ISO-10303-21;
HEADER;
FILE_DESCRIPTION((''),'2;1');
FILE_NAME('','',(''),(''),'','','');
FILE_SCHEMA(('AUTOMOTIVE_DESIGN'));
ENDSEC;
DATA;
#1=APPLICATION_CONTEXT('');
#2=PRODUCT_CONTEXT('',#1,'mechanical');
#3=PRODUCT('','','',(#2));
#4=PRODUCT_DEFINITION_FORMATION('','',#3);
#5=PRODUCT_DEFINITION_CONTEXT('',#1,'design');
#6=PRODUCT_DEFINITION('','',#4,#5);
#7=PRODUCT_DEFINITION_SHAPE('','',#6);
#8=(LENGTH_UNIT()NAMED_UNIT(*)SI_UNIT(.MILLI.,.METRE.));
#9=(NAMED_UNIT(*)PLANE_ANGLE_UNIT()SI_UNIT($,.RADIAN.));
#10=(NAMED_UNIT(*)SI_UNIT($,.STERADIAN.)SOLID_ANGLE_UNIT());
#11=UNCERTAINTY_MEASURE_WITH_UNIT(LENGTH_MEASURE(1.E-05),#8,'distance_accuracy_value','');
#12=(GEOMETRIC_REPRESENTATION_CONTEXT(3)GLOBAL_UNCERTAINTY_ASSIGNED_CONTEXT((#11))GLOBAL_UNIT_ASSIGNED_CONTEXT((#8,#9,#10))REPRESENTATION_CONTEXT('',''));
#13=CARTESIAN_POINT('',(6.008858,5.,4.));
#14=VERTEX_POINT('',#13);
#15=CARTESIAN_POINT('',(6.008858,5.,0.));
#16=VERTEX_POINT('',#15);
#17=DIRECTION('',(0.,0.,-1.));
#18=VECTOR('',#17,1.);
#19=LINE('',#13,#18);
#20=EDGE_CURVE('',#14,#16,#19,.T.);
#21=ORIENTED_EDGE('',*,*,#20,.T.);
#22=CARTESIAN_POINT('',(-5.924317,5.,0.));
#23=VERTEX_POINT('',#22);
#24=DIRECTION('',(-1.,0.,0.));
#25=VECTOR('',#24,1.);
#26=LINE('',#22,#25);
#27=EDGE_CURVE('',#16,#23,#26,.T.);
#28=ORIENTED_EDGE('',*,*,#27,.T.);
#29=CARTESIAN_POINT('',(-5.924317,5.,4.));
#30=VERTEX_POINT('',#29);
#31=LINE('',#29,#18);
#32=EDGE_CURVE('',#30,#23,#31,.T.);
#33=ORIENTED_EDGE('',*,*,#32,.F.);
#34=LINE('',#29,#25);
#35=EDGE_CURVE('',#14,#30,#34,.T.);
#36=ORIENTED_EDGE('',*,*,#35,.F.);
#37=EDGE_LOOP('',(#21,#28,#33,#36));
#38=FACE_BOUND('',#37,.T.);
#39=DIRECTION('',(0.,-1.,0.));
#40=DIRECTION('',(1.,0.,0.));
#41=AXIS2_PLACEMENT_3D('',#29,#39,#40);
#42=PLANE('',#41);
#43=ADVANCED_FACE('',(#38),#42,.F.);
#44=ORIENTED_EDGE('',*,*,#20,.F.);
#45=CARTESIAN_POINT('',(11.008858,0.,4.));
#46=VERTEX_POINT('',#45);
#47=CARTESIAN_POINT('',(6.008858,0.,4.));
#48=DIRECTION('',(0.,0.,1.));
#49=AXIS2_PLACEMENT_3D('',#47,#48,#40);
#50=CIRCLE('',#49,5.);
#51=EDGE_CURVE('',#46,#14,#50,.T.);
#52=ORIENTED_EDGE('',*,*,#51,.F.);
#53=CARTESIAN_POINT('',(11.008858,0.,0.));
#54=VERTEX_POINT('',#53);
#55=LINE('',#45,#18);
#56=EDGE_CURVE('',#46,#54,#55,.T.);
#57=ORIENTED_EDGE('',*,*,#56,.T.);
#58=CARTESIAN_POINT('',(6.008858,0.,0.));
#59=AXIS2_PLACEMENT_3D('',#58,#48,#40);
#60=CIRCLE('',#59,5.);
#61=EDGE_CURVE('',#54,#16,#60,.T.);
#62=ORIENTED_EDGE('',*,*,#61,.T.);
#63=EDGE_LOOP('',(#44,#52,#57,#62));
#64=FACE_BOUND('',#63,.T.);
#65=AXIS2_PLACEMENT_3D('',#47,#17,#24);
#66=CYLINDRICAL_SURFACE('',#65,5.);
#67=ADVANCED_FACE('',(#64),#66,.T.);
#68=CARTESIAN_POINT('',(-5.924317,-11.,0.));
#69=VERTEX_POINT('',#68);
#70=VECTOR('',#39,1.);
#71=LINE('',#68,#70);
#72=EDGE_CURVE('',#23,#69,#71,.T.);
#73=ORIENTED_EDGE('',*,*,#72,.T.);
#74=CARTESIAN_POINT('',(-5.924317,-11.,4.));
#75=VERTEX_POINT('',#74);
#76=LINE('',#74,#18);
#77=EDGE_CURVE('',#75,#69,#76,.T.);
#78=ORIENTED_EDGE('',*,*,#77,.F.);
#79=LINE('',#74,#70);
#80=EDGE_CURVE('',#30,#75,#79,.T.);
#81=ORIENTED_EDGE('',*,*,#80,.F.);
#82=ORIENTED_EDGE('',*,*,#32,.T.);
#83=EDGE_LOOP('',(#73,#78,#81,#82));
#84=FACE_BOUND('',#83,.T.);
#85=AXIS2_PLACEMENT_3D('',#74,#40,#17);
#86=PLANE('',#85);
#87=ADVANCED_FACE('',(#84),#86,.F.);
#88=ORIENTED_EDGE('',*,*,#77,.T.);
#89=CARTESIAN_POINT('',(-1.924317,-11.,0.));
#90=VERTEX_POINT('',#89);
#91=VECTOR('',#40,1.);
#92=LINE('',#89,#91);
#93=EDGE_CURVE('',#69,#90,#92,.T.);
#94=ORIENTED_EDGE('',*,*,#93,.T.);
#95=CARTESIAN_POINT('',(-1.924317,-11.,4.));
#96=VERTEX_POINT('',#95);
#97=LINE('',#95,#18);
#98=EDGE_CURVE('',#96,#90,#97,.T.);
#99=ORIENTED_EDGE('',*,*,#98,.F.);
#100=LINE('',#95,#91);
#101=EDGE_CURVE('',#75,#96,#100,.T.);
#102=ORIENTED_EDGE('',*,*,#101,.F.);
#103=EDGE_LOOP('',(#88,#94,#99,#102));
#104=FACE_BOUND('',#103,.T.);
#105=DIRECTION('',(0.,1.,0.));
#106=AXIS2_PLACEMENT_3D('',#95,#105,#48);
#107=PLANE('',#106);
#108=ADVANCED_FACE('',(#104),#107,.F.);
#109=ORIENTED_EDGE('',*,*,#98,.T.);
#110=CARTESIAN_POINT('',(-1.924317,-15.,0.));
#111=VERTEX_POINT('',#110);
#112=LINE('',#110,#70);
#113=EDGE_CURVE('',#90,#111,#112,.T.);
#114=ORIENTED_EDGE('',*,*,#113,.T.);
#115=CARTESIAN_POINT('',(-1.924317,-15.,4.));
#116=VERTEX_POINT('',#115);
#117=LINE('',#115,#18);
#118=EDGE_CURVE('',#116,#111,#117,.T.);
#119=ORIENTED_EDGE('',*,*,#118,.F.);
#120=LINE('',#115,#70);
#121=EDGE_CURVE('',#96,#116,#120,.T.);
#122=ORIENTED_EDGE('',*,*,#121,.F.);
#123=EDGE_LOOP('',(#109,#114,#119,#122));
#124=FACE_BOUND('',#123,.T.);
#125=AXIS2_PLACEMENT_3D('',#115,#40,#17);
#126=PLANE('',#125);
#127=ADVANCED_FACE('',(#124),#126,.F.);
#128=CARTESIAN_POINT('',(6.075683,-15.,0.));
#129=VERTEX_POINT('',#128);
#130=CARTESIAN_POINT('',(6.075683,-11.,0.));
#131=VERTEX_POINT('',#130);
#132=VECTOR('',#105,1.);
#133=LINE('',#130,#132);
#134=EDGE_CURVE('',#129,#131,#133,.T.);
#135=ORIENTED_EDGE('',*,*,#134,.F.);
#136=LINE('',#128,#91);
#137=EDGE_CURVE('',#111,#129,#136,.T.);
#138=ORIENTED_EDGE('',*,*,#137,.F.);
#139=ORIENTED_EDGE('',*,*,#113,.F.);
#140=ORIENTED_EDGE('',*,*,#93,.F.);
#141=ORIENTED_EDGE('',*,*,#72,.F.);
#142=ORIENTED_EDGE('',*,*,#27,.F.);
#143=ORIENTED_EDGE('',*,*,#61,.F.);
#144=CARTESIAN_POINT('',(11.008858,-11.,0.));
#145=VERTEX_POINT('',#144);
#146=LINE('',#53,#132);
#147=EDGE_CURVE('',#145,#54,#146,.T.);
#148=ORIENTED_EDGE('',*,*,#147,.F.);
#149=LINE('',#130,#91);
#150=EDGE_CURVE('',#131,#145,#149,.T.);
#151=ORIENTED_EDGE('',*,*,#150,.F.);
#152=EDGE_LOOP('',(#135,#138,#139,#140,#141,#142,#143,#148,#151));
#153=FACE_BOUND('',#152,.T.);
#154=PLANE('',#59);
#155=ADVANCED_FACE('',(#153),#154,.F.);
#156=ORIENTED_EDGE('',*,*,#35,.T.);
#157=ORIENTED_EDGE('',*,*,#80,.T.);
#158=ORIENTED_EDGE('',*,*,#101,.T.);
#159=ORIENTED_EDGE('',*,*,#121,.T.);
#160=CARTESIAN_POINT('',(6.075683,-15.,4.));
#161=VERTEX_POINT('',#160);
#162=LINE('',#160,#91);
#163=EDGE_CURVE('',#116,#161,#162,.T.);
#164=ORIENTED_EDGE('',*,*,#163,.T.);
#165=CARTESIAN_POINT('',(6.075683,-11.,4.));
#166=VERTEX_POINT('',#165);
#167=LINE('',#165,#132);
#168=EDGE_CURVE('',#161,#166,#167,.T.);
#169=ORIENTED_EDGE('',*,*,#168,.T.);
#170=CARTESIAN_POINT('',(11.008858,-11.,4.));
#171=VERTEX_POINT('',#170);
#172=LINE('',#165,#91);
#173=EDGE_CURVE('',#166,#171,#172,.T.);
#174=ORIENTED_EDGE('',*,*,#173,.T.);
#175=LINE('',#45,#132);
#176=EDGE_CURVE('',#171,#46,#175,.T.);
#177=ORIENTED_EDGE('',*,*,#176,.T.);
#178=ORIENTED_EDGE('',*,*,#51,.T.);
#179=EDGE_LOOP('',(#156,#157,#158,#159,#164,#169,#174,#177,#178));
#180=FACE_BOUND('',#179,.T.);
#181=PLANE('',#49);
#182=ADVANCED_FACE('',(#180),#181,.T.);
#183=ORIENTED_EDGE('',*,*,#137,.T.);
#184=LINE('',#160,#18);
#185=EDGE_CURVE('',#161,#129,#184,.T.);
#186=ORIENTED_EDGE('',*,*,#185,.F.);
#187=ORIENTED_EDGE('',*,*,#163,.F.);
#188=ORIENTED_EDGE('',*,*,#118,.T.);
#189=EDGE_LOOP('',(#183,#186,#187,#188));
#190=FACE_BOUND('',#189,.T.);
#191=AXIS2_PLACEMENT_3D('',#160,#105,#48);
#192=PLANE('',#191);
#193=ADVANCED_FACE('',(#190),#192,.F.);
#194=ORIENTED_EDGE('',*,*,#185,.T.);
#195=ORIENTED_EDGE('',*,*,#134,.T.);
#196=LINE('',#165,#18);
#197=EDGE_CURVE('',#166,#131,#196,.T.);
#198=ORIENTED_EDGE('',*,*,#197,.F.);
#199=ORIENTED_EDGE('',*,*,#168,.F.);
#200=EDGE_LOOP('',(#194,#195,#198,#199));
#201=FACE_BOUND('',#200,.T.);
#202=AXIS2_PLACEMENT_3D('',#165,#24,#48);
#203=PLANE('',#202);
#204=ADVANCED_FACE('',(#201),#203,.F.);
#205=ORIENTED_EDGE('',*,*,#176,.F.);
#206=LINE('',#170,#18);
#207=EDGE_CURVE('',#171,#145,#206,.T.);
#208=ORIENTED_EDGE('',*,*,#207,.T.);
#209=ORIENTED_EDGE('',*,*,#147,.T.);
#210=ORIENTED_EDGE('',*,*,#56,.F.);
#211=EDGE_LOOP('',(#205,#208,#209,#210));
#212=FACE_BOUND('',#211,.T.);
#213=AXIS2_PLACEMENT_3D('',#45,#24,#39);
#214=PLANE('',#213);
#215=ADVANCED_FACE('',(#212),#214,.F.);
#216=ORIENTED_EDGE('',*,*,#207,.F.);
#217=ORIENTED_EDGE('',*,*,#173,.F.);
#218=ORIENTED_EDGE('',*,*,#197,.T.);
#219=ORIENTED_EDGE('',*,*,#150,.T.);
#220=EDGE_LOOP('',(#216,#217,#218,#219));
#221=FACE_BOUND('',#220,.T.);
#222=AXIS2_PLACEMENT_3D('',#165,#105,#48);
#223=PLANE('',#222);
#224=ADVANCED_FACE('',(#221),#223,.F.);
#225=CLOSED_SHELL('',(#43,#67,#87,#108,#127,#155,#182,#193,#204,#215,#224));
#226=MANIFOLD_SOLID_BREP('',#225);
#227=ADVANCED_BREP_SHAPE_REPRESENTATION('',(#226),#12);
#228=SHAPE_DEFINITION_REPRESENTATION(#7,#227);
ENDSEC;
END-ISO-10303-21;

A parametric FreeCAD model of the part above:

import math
import FreeCAD as App
import Part
import Sketcher

V = App.Vector

doc = App.newDocument("Part")
body = doc.addObject("PartDesign::Body", "Body")

# Sketch on XY plane
sketch1 = body.newObject("Sketcher::SketchObject", "Sketch")
sketch1.AttachmentSupport = (doc.getObject("XY_Plane"), [""])
sketch1.MapMode = "FlatFace"
sketch1.addGeometry([
    Part.LineSegment(V(6.1, -11, 0), V(11, -11, 0)),  # 0
    Part.LineSegment(V(11, -11, 0), V(11, 0, 0)),  # 1
    Part.ArcOfCircle(Part.Circle(V(6, 0, 0), V(0, 0, 1), 5), math.radians(0), math.radians(90)),  # 2
    Part.LineSegment(V(6, 5, 0), V(-5.9, 5, 0)),  # 3
    Part.LineSegment(V(-5.9, 5, 0), V(-5.9, -11, 0)),  # 4
    Part.LineSegment(V(-5.9, -11, 0), V(-1.9, -11, 0)),  # 5
    Part.LineSegment(V(-1.9, -11, 0), V(-1.9, -15, 0)),  # 6
    Part.LineSegment(V(-1.9, -15, 0), V(6.1, -15, 0)),  # 7
    Part.LineSegment(V(6.1, -15, 0), V(6.1, -11, 0)),  # 8
], False)
sketch1.addConstraint([
    Sketcher.Constraint("Coincident", 0, 2, 1, 1),
    Sketcher.Constraint("Tangent", 1, 2, 2, 1),
    Sketcher.Constraint("Tangent", 2, 2, 3, 1),
    Sketcher.Constraint("Coincident", 3, 2, 4, 1),
    Sketcher.Constraint("Coincident", 4, 2, 5, 1),
    Sketcher.Constraint("Coincident", 5, 2, 6, 1),
    Sketcher.Constraint("Coincident", 6, 2, 7, 1),
    Sketcher.Constraint("Coincident", 7, 2, 8, 1),
    Sketcher.Constraint("Coincident", 8, 2, 0, 1),
    Sketcher.Constraint("Horizontal", 0),
    Sketcher.Constraint("Vertical", 1),
    Sketcher.Constraint("Horizontal", 3),
    Sketcher.Constraint("Vertical", 4),
    Sketcher.Constraint("Horizontal", 5),
    Sketcher.Constraint("Vertical", 6),
    Sketcher.Constraint("Horizontal", 7),
    Sketcher.Constraint("Vertical", 8),
    Sketcher.Constraint("PointOnObject", 2, 3, -1),
    Sketcher.Constraint("Horizontal", 0, 2, 4, 2),
    Sketcher.Constraint("Equal", 5, 6),
    Sketcher.Constraint("Radius", 2, 5.0),
    Sketcher.Constraint("DistanceX", 5, 1, 5, 2, 4.0),
    Sketcher.Constraint("DistanceX", 7, 1, 7, 2, 8.0),
    Sketcher.Constraint("DistanceY", 1, 1, 1, 2, 11.0),
    Sketcher.Constraint("DistanceX", 0, 1, 0, 2, 4.933174),
    Sketcher.Constraint("DistanceX", -1, 1, 2, 3, 6.008858),
])
pad1 = body.newObject("PartDesign::Pad", "Pad")
pad1.Profile = sketch1
pad1.Length = 4

doc.recompute()
